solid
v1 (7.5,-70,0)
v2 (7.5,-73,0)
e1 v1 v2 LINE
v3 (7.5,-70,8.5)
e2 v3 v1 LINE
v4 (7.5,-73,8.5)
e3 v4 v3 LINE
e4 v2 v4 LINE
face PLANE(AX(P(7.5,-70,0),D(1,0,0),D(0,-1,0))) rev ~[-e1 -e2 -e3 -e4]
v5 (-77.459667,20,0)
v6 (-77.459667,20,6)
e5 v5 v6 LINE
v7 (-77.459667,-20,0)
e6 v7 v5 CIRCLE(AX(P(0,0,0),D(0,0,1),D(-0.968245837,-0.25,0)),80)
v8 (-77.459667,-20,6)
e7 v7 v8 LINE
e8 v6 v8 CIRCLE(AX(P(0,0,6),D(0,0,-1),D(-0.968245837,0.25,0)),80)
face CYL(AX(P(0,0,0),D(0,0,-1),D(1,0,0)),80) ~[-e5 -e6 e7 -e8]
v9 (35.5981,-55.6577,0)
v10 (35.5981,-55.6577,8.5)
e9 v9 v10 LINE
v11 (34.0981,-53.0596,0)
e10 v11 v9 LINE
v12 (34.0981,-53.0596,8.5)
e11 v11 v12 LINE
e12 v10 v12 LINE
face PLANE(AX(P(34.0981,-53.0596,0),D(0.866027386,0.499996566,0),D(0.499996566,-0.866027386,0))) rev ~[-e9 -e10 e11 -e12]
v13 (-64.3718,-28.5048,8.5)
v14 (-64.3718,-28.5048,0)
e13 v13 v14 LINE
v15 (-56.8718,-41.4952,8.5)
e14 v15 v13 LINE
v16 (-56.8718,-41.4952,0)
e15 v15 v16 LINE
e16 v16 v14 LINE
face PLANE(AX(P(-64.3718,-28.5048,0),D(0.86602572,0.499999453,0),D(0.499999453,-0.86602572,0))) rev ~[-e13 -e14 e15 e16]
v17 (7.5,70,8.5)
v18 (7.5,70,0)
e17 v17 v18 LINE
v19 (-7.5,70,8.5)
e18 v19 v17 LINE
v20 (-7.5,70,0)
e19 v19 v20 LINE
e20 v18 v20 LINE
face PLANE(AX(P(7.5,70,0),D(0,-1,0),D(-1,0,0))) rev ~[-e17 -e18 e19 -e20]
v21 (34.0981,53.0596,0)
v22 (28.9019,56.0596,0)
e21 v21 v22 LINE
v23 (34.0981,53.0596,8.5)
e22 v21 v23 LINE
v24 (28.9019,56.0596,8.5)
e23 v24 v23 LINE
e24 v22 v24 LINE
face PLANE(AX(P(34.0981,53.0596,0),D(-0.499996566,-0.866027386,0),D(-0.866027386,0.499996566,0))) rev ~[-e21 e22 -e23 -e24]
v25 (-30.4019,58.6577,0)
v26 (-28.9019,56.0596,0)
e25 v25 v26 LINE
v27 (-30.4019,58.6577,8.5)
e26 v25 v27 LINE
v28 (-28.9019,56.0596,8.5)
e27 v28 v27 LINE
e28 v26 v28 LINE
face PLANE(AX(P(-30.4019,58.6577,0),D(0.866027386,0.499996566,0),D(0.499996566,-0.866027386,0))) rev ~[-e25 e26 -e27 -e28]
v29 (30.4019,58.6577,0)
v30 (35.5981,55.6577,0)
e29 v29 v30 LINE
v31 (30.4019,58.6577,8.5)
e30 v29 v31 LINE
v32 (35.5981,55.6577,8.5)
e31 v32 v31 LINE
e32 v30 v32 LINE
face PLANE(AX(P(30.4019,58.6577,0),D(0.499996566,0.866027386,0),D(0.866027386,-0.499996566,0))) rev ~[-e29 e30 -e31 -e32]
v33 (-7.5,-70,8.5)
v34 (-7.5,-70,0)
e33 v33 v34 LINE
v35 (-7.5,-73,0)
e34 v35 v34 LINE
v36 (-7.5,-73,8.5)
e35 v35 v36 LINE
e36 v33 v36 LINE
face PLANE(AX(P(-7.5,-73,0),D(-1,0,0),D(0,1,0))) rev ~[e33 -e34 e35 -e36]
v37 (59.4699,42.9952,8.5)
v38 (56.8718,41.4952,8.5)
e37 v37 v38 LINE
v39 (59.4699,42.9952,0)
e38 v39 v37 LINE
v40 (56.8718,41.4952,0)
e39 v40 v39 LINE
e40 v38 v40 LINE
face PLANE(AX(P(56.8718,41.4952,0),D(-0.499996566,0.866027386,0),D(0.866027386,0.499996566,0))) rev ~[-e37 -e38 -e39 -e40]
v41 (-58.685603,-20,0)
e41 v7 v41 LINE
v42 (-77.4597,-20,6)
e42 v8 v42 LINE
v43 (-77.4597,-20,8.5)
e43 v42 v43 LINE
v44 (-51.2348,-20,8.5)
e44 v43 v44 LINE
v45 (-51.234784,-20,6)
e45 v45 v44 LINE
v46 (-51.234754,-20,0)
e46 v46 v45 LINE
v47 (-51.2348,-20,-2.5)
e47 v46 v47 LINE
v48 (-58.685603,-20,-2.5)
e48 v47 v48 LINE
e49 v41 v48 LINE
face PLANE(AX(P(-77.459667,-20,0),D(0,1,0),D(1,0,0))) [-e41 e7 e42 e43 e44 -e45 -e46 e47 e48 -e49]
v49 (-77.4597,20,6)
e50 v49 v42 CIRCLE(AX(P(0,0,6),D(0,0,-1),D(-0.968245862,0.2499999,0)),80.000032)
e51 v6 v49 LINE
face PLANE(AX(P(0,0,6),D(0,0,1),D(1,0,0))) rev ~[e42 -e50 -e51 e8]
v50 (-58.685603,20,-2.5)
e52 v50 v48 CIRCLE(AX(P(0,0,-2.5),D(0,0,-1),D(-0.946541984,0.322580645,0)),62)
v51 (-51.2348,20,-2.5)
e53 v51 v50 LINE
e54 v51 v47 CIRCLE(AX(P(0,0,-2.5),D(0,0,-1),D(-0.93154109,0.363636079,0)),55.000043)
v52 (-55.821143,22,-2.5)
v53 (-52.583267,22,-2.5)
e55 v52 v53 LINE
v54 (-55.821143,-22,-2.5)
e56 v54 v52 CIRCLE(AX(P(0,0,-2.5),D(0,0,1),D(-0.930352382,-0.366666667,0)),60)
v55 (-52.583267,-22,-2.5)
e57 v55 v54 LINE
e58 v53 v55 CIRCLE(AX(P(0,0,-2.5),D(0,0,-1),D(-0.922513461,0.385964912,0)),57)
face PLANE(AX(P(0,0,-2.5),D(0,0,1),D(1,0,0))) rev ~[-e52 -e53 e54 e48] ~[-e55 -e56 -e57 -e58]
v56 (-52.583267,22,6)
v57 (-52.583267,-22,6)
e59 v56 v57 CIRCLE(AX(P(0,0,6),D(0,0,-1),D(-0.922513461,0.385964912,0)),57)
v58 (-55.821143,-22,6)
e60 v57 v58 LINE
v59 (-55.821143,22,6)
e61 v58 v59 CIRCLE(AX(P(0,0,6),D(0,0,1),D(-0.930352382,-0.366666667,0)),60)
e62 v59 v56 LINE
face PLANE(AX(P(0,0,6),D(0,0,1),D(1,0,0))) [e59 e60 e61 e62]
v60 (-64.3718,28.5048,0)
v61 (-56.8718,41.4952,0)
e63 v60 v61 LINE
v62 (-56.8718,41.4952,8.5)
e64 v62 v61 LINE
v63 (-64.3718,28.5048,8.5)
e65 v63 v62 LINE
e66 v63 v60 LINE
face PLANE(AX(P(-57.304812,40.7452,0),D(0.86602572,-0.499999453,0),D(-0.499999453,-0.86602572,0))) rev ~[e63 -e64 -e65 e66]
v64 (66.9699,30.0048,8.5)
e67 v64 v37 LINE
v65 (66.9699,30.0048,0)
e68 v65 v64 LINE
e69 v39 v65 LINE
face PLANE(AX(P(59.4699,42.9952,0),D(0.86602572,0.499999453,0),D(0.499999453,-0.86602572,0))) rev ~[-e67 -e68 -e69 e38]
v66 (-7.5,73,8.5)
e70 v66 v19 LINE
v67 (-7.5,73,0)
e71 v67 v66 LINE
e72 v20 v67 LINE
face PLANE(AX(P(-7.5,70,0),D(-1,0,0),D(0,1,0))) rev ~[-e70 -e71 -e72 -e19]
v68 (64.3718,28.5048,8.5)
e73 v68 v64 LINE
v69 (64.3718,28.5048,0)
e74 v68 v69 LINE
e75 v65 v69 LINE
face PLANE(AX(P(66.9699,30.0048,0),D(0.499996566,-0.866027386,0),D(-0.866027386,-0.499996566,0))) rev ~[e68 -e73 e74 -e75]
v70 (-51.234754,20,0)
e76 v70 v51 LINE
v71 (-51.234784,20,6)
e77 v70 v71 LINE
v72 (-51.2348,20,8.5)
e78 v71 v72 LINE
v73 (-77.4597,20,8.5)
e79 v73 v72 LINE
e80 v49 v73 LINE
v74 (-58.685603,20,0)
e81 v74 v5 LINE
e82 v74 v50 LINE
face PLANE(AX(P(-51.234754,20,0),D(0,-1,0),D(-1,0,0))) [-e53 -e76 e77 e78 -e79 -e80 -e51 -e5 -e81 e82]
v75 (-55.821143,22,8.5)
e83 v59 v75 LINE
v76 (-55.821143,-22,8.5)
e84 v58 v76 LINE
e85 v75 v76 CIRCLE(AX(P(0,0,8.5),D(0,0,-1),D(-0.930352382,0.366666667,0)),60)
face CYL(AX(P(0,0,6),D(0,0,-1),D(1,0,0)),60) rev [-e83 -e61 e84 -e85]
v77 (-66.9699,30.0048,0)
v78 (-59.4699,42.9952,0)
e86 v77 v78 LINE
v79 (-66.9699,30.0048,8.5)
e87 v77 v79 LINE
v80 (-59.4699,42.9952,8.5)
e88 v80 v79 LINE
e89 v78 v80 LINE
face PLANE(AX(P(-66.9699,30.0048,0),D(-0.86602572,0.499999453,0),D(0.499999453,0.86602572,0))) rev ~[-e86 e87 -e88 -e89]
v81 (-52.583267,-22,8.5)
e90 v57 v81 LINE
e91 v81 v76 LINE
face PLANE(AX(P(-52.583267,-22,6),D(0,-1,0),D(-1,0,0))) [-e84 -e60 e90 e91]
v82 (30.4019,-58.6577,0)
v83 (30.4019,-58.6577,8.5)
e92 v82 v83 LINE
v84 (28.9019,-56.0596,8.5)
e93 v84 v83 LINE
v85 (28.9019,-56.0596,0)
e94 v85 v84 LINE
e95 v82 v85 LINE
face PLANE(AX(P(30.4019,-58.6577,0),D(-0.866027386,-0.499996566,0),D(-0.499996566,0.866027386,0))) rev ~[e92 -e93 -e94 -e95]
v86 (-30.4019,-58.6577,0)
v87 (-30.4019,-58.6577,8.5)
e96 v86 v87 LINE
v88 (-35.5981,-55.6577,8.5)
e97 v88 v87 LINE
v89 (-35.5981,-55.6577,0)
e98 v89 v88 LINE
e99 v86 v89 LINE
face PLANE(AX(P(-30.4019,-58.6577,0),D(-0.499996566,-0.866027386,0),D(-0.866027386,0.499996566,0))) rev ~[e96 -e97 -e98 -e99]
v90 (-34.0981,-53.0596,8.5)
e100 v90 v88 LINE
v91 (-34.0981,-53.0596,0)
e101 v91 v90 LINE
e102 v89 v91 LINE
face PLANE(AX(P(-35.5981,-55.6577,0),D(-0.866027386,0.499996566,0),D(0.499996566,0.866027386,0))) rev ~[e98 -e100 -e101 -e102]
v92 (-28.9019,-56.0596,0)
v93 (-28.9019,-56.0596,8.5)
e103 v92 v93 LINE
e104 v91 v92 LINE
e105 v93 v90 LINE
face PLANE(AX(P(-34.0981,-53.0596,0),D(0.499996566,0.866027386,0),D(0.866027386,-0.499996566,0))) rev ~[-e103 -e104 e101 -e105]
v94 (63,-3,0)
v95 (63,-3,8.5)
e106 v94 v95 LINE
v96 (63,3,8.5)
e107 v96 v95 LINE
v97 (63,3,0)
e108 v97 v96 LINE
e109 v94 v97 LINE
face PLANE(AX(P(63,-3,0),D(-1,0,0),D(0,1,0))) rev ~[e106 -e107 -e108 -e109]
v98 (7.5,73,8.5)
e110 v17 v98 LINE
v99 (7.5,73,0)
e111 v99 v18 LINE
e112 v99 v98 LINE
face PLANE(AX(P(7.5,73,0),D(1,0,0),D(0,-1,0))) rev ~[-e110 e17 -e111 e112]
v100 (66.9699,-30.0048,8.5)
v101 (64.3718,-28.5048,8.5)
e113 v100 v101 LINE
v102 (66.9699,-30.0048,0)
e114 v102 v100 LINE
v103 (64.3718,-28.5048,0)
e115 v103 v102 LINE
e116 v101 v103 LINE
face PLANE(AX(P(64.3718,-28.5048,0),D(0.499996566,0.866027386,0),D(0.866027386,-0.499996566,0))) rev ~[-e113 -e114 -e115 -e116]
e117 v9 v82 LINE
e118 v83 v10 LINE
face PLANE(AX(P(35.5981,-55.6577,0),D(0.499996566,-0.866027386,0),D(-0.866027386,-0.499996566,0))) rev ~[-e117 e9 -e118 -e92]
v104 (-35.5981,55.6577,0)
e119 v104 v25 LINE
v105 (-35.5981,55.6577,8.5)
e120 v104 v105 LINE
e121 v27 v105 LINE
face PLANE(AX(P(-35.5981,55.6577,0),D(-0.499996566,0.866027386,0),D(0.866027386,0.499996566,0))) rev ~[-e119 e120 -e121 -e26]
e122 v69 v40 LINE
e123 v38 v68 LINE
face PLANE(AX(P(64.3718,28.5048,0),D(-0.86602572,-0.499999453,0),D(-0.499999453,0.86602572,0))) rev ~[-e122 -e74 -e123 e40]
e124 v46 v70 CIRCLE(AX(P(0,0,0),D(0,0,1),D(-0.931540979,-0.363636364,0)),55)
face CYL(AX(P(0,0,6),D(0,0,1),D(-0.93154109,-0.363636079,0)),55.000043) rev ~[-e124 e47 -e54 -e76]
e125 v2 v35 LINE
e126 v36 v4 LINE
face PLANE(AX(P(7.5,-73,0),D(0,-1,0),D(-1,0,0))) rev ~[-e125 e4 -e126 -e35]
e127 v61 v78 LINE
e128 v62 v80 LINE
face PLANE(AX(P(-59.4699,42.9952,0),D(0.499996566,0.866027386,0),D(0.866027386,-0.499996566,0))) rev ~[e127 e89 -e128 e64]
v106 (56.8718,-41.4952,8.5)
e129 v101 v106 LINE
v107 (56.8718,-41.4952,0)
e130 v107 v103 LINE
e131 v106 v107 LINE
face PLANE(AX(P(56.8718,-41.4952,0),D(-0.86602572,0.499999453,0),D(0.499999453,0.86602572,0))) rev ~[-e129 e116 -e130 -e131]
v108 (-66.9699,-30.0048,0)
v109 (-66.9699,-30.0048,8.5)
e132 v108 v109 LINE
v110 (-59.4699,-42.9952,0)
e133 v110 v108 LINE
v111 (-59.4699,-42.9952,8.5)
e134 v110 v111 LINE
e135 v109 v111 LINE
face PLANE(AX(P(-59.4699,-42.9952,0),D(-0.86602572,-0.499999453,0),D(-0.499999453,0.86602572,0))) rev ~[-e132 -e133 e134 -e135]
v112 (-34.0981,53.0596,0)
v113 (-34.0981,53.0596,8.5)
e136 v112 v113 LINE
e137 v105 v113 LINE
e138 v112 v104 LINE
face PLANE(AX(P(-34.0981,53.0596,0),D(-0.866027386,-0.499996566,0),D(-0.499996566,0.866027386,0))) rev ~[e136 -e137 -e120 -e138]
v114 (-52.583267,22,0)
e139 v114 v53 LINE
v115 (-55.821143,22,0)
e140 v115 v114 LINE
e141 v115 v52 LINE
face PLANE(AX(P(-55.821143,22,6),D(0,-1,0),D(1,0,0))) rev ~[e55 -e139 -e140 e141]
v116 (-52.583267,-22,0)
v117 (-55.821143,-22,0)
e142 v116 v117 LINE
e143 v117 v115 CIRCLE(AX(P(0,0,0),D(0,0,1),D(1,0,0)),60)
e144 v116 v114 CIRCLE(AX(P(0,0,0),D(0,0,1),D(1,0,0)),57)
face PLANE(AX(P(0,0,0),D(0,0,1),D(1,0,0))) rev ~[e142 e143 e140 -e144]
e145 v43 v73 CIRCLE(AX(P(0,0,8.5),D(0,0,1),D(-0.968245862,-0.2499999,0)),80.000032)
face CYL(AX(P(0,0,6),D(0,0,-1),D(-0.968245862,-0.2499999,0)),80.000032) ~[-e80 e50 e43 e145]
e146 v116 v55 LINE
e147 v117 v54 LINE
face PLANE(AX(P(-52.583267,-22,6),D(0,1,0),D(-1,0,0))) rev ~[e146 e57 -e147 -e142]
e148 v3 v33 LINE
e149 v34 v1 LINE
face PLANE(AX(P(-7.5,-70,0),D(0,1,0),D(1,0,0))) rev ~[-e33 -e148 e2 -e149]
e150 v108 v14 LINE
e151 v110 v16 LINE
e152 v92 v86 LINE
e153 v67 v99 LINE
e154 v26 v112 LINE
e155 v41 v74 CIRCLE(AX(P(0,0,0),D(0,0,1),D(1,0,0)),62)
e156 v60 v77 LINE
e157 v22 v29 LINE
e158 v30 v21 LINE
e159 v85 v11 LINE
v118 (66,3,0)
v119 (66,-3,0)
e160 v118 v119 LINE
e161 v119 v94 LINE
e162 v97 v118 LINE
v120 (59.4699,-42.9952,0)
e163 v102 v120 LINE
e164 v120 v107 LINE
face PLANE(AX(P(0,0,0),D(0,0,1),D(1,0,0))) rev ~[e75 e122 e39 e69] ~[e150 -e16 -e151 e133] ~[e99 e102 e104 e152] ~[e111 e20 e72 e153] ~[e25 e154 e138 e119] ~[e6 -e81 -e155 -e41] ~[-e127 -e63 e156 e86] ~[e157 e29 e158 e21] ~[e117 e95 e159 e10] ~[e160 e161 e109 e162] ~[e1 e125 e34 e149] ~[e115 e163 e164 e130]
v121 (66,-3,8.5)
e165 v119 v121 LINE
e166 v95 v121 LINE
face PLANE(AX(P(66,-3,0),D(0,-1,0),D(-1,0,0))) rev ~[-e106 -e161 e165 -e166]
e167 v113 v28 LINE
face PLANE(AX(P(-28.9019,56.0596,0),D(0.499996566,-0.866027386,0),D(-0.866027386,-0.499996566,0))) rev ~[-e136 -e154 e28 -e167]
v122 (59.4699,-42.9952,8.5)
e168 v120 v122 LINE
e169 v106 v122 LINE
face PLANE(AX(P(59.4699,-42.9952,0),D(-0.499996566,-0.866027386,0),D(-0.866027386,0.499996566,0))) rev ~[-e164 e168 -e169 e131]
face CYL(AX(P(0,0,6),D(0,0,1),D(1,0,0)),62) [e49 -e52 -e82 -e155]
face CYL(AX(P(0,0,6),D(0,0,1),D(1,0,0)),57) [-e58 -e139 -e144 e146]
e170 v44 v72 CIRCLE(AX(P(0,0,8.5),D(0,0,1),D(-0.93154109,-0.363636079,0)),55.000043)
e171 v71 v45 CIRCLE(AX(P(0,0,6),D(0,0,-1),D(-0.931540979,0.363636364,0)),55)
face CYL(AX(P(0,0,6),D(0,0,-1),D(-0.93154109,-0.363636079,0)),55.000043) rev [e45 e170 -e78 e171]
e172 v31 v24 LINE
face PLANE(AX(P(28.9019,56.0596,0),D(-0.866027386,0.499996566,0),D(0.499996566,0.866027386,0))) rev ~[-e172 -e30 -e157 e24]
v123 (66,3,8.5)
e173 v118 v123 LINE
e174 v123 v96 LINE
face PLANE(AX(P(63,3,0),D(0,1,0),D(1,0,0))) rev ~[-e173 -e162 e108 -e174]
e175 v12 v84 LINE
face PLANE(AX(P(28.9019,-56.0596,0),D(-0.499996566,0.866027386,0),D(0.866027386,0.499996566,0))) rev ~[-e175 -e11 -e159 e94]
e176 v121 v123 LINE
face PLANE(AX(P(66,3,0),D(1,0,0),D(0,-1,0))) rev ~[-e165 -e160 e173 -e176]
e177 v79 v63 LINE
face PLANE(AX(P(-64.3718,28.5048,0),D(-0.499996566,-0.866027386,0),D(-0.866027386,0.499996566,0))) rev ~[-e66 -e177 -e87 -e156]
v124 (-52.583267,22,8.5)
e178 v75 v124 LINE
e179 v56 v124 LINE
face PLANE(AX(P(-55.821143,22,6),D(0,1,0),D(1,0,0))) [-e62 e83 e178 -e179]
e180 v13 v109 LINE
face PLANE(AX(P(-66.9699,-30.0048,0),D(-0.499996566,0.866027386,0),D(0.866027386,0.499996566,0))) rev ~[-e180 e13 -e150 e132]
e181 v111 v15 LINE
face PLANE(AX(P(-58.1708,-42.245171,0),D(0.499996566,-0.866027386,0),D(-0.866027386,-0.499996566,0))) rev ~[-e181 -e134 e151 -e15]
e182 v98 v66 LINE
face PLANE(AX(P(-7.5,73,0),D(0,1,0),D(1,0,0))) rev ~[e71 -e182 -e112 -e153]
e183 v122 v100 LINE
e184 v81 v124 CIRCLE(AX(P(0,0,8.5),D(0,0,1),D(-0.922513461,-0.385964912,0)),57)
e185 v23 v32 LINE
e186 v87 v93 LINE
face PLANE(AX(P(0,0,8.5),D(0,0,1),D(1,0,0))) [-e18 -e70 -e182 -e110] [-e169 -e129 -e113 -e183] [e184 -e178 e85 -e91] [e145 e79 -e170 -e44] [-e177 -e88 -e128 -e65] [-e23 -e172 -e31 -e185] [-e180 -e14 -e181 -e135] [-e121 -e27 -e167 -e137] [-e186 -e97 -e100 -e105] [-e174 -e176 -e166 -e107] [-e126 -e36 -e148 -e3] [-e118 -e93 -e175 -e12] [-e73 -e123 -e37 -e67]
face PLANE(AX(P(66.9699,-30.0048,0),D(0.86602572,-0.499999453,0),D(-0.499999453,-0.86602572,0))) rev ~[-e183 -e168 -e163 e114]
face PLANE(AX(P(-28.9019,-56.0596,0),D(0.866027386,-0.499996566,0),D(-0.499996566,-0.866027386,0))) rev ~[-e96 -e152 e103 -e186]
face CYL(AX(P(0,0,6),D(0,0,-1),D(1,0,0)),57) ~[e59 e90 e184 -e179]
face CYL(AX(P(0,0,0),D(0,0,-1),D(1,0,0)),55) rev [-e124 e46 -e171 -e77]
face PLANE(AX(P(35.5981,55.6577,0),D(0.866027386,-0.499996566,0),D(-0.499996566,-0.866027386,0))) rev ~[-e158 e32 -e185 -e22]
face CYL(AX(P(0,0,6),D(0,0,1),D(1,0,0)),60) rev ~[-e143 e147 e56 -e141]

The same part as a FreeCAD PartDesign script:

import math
import FreeCAD as App
import Part
import Sketcher

V = App.Vector
Q = App.Units.Quantity

doc = App.newDocument("Part")
body = doc.addObject("PartDesign::Body", "Body")

# Sketch on XY plane
sketch1 = body.newObject("Sketcher::SketchObject", "Sketch")
sketch1.AttachmentSupport = (doc.getObject("XY_Plane"), [""])
sketch1.MapMode = "FlatFace"
sketch1.addGeometry([
    Part.ArcOfCircle(Part.Circle(V(0, 0, 0), V(0, 0, 1), 80), math.radians(-165.522488), math.radians(165.522488)),  # 0
    Part.LineSegment(V(-77.459667, 20, 0), V(-51.234754, 20, 0)),  # 1
    Part.ArcOfCircle(Part.Circle(V(0, 0, 0), V(0, 0, 1), 55), math.radians(-158.676314), math.radians(158.676314)),  # 2
    Part.LineSegment(V(-51.234754, -20, 0), V(-77.459667, -20, 0)),  # 3
    Part.LineSegment(V(-59.4699, -42.9952, 0), V(-66.9699, -30.0048, 0)),  # 4
    Part.LineSegment(V(-66.9699, -30.0048, 0), V(-64.3718, -28.5048, 0)),  # 5
    Part.LineSegment(V(-64.3718, -28.5048, 0), V(-56.8718, -41.4952, 0)),  # 6
    Part.LineSegment(V(-56.8718, -41.4952, 0), V(-59.4699, -42.9952, 0)),  # 7
    Part.LineSegment(V(7.5, -70, 0), V(7.5, -73, 0)),  # 8
    Part.LineSegment(V(7.5, -73, 0), V(-7.5, -73, 0)),  # 9
    Part.LineSegment(V(-7.5, -73, 0), V(-7.5, -70, 0)),  # 10
    Part.LineSegment(V(-7.5, -70, 0), V(7.5, -70, 0)),  # 11
    Part.LineSegment(V(64.3718, -28.5048, 0), V(66.9699, -30.0048, 0)),  # 12
    Part.LineSegment(V(66.9699, -30.0048, 0), V(59.4699, -42.9952, 0)),  # 13
    Part.LineSegment(V(59.4699, -42.9952, 0), V(56.8718, -41.4952, 0)),  # 14
    Part.LineSegment(V(56.8718, -41.4952, 0), V(64.3718, -28.5048, 0)),  # 15
    Part.LineSegment(V(-64.3718, 28.5048, 0), V(-66.9699, 30.0048, 0)),  # 16
    Part.LineSegment(V(-66.9699, 30.0048, 0), V(-59.4699, 42.9952, 0)),  # 17
    Part.LineSegment(V(-59.4699, 42.9952, 0), V(-56.8718, 41.4952, 0)),  # 18
    Part.LineSegment(V(-56.8718, 41.4952, 0), V(-64.3718, 28.5048, 0)),  # 19
    Part.LineSegment(V(56.8718, 41.4952, 0), V(59.4699, 42.9952, 0)),  # 20
    Part.LineSegment(V(59.4699, 42.9952, 0), V(66.9699, 30.0048, 0)),  # 21
    Part.LineSegment(V(66.9699, 30.0048, 0), V(64.3718, 28.5048, 0)),  # 22
    Part.LineSegment(V(64.3718, 28.5048, 0), V(56.8718, 41.4952, 0)),  # 23
    Part.LineSegment(V(-7.5, 70, 0), V(-7.5, 73, 0)),  # 24
    Part.LineSegment(V(-7.5, 73, 0), V(7.5, 73, 0)),  # 25
    Part.LineSegment(V(7.5, 73, 0), V(7.5, 70, 0)),  # 26
    Part.LineSegment(V(7.5, 70, 0), V(-7.5, 70, 0)),  # 27
], False)
sketch1.addConstraint([
    Sketcher.Constraint("Coincident", 0, 2, 1, 1),
    Sketcher.Constraint("Coincident", 1, 2, 2, 2),
    Sketcher.Constraint("Coincident", 2, 1, 3, 1),
    Sketcher.Constraint("Coincident", 3, 2, 0, 1),
    Sketcher.Constraint("Coincident", 4, 2, 5, 1),
    Sketcher.Constraint("Coincident", 5, 2, 6, 1),
    Sketcher.Constraint("Coincident", 6, 2, 7, 1),
    Sketcher.Constraint("Coincident", 7, 2, 4, 1),
    Sketcher.Constraint("Coincident", 8, 2, 9, 1),
    Sketcher.Constraint("Coincident", 9, 2, 10, 1),
    Sketcher.Constraint("Coincident", 10, 2, 11, 1),
    Sketcher.Constraint("Coincident", 11, 2, 8, 1),
    Sketcher.Constraint("Coincident", 12, 2, 13, 1),
    Sketcher.Constraint("Coincident", 13, 2, 14, 1),
    Sketcher.Constraint("Coincident", 14, 2, 15, 1),
    Sketcher.Constraint("Coincident", 15, 2, 12, 1),
    Sketcher.Constraint("Coincident", 16, 2, 17, 1),
    Sketcher.Constraint("Coincident", 17, 2, 18, 1),
    Sketcher.Constraint("Coincident", 18, 2, 19, 1),
    Sketcher.Constraint("Coincident", 19, 2, 16, 1),
    Sketcher.Constraint("Coincident", 20, 2, 21, 1),
    Sketcher.Constraint("Coincident", 21, 2, 22, 1),
    Sketcher.Constraint("Coincident", 22, 2, 23, 1),
    Sketcher.Constraint("Coincident", 23, 2, 20, 1),
    Sketcher.Constraint("Coincident", 24, 2, 25, 1),
    Sketcher.Constraint("Coincident", 25, 2, 26, 1),
    Sketcher.Constraint("Coincident", 26, 2, 27, 1),
    Sketcher.Constraint("Coincident", 27, 2, 24, 1),
    Sketcher.Constraint("Horizontal", 1),
    Sketcher.Constraint("Horizontal", 3),
    Sketcher.Constraint("Vertical", 8),
    Sketcher.Constraint("Horizontal", 9),
    Sketcher.Constraint("Vertical", 10),
    Sketcher.Constraint("Horizontal", 11),
    Sketcher.Constraint("Vertical", 24),
    Sketcher.Constraint("Horizontal", 25),
    Sketcher.Constraint("Vertical", 26),
    Sketcher.Constraint("Horizontal", 27),
    Sketcher.Constraint("Coincident", 0, 3, -1, 1),
    Sketcher.Constraint("Coincident", 2, 3, -1, 1),
    Sketcher.Constraint("Symmetric", 12, 2, 16, 2, -1, 1),
    Sketcher.Constraint("Symmetric", 13, 2, 17, 2, -1, 1),
    Sketcher.Constraint("Symmetric", 14, 2, 18, 2, -1, 1),
    Sketcher.Constraint("Symmetric", 15, 2, 19, 2, -1, 1),
    Sketcher.Constraint("Symmetric", 7, 2, 20, 2, -1, 1),
    Sketcher.Constraint("Symmetric", 4, 2, 21, 2, -1, 1),
    Sketcher.Constraint("Symmetric", 5, 2, 22, 2, -1, 1),
    Sketcher.Constraint("Symmetric", 6, 2, 23, 2, -1, 1),
    Sketcher.Constraint("Symmetric", 8, 2, 24, 2, -1, 1),
    Sketcher.Constraint("Symmetric", 10, 2, 26, 2, -1, 1),
    Sketcher.Constraint("Symmetric", 4, 2, 12, 2, -2),
    Sketcher.Constraint("Symmetric", 7, 2, 13, 2, -2),
    Sketcher.Constraint("Symmetric", 6, 2, 14, 2, -2),
    Sketcher.Constraint("Symmetric", 5, 2, 15, 2, -2),
    Sketcher.Constraint("Perpendicular", 4, 5),
    Sketcher.Constraint("Perpendicular", 5, 6),
    Sketcher.Constraint("Perpendicular", 6, 7),
    Sketcher.Constraint("Vertical", 1, 2, 2, 1),
    Sketcher.Constraint("Vertical", 10, 2, 24, 2),
    Sketcher.Constraint("Radius", 0, Q("80 mm")),
    Sketcher.Constraint("Radius", 2, Q("55 mm")),
    Sketcher.Constraint("DistanceX", 9, 2, 9, 1, Q("15 mm")),
    Sketcher.Constraint("DistanceY", 8, 2, 8, 1, Q("3 mm")),
    Sketcher.Constraint("Distance", 4, Q("15 mm")),
    Sketcher.Constraint("Distance", 5, Q("3 mm")),
    Sketcher.Constraint("DistanceY", 10, 2, -1, 1, Q("70 mm")),
    Sketcher.Constraint("DistanceY", 2, 1, 1, 2, Q("40 mm")),
    Sketcher.Constraint("DistanceY", 14, 2, 22, 2, Q("70 mm")),
    Sketcher.Constraint("Angle", 4, Q("120 deg")),
    Sketcher.Constraint("DistanceX", 4, 2, -1, 1, Q("66.97 mm")),
])
pad1 = body.newObject("PartDesign::Pad", "Pad")
pad1.Profile = sketch1
pad1.Length = 6

# Sketch on XY plane
sketch2 = body.newObject("Sketcher::SketchObject", "Sketch001")
sketch2.AttachmentSupport = (doc.getObject("XY_Plane"), [""])
sketch2.MapMode = "FlatFace"
sketch2.AttachmentOffset = App.Placement(V(0, 0, 6), App.Rotation())
sketch2.addGeometry([
    Part.LineSegment(V(-51.2348, -20, 0), V(-58.685603, -20, 0)),  # 0
    Part.ArcOfCircle(Part.Circle(V(0, 0, 0), V(0, 0, 1), 62), math.radians(-161.180937), math.radians(161.180937)),  # 1
    Part.LineSegment(V(-58.685603, 20, 0), V(-51.2348, 20, 0)),  # 2
    Part.ArcOfCircle(Part.Circle(V(0, 0, 0), V(0, 0, 1), 55.000043), math.radians(-158.676331), math.radians(158.676331)),  # 3
    Part.LineSegment(V(-52.583267, 22, 0), V(-55.821143, 22, 0)),  # 4
    Part.ArcOfCircle(Part.Circle(V(0, 0, 0), V(0, 0, 1), 60), math.radians(-158.489812), math.radians(158.489812)),  # 5
    Part.LineSegment(V(-55.821143, -22, 0), V(-52.583267, -22, 0)),  # 6
    Part.ArcOfCircle(Part.Circle(V(0, 0, 0), V(0, 0, 1), 57), math.radians(-157.296344), math.radians(157.296344)),  # 7
], False)
sketch2.addConstraint([
    Sketcher.Constraint("Coincident", 0, 2, 1, 1),
    Sketcher.Constraint("Coincident", 1, 2, 2, 1),
    Sketcher.Constraint("Coincident", 2, 2, 3, 2),
    Sketcher.Constraint("Coincident", 3, 1, 0, 1),
    Sketcher.Constraint("Coincident", 4, 2, 5, 2),
    Sketcher.Constraint("Coincident", 5, 1, 6, 1),
    Sketcher.Constraint("Coincident", 6, 2, 7, 1),
    Sketcher.Constraint("Coincident", 7, 2, 4, 1),
    Sketcher.Constraint("Horizontal", 0),
    Sketcher.Constraint("Horizontal", 2),
    Sketcher.Constraint("Horizontal", 4),
    Sketcher.Constraint("Horizontal", 6),
    Sketcher.Constraint("Coincident", 1, 3, -1, 1),
    Sketcher.Constraint("Coincident", 3, 3, -1, 1),
    Sketcher.Constraint("Coincident", 5, 3, -1, 1),
    Sketcher.Constraint("Coincident", 7, 3, -1, 1),
    Sketcher.Constraint("Vertical", 0, 2, 1, 2),
    Sketcher.Constraint("Vertical", 4, 2, 5, 1),
    Sketcher.Constraint("Radius", 1, Q("62 mm")),
    Sketcher.Constraint("Radius", 5, Q("60 mm")),
    Sketcher.Constraint("Radius", 7, Q("57 mm")),
    Sketcher.Constraint("Radius", 3, Q("55 mm")),
    Sketcher.Constraint("DistanceY", 1, 2, 4, 2, Q("2 mm")),
    Sketcher.Constraint("DistanceY", 0, 2, -1, 1, Q("20 mm")),
])
pad2 = body.newObject("PartDesign::Pad", "Pad001")
pad2.Profile = sketch2
pad2.Length = 8.5
pad2.Reversed = True

# Sketch on XY plane
sketch3 = body.newObject("Sketcher::SketchObject", "Sketch002")
sketch3.AttachmentSupport = (doc.getObject("XY_Plane"), [""])
sketch3.MapMode = "FlatFace"
sketch3.AttachmentOffset = App.Placement(V(0, 0, 6), App.Rotation())
sketch3.addGeometry([
    Part.LineSegment(V(-51.2348, -20, 0), V(-77.4597, -20, 0)),  # 0
    Part.ArcOfCircle(Part.Circle(V(0, 0, 0), V(0, 0, 1), 80.000032), math.radians(-165.522494), math.radians(165.522494)),  # 1
    Part.LineSegment(V(-77.4597, 20, 0), V(-51.2348, 20, 0)),  # 2
    Part.ArcOfCircle(Part.Circle(V(0, 0, 0), V(0, 0, 1), 55.000043), math.radians(-158.676331), math.radians(158.676331)),  # 3
    Part.LineSegment(V(-52.583267, 22, 0), V(-55.821143, 22, 0)),  # 4
    Part.ArcOfCircle(Part.Circle(V(0, 0, 0), V(0, 0, 1), 60), math.radians(-158.489812), math.radians(158.489812)),  # 5
    Part.LineSegment(V(-55.821143, -22, 0), V(-52.583267, -22, 0)),  # 6
    Part.ArcOfCircle(Part.Circle(V(0, 0, 0), V(0, 0, 1), 57), math.radians(-157.296344), math.radians(157.296344)),  # 7
], False)
sketch3.addConstraint([
    Sketcher.Constraint("Coincident", 0, 2, 1, 1),
    Sketcher.Constraint("Coincident", 1, 2, 2, 1),
    Sketcher.Constraint("Coincident", 2, 2, 3, 2),
    Sketcher.Constraint("Coincident", 3, 1, 0, 1),
    Sketcher.Constraint("Coincident", 4, 2, 5, 2),
    Sketcher.Constraint("Coincident", 5, 1, 6, 1),
    Sketcher.Constraint("Coincident", 6, 2, 7, 1),
    Sketcher.Constraint("Coincident", 7, 2, 4, 1),
    Sketcher.Constraint("Horizontal", 0),
    Sketcher.Constraint("Horizontal", 2),
    Sketcher.Constraint("Horizontal", 4),
    Sketcher.Constraint("Horizontal", 6),
    Sketcher.Constraint("Coincident", 1, 3, -1, 1),
    Sketcher.Constraint("Coincident", 3, 3, -1, 1),
    Sketcher.Constraint("Coincident", 5, 3, -1, 1),
    Sketcher.Constraint("Coincident", 7, 3, -1, 1),
    Sketcher.Constraint("Vertical", 0, 2, 1, 2),
    Sketcher.Constraint("Vertical", 4, 2, 5, 1),
    Sketcher.Constraint("Radius", 5, Q("60 mm")),
    Sketcher.Constraint("Radius", 7, Q("57 mm")),
    Sketcher.Constraint("Radius", 1, Q("80 mm")),
    Sketcher.Constraint("Radius", 3, Q("55 mm")),
    Sketcher.Constraint("DistanceY", 2, 2, 4, 2, Q("2 mm")),
    Sketcher.Constraint("DistanceX", 0, 2, 0, 1, Q("26.225 mm")),
])
pad3 = body.newObject("PartDesign::Pad", "Pad002")
pad3.Profile = sketch3
pad3.Length = 2.5

# Sketch on XY plane
sketch4 = body.newObject("Sketcher::SketchObject", "Sketch003")
sketch4.AttachmentSupport = (doc.getObject("XY_Plane"), [""])
sketch4.MapMode = "FlatFace"
sketch4.addGeometry([
    Part.LineSegment(V(63, -3, 0), V(63, 3, 0)),  # 0
    Part.LineSegment(V(63, 3, 0), V(66, 3, 0)),  # 1
    Part.LineSegment(V(66, 3, 0), V(66, -3, 0)),  # 2
    Part.LineSegment(V(66, -3, 0), V(63, -3, 0)),  # 3
    Part.LineSegment(V(28.9019, -56.0596, 0), V(34.0981, -53.0596, 0)),  # 4
    Part.LineSegment(V(34.0981, -53.0596, 0), V(35.5981, -55.6577, 0)),  # 5
    Part.LineSegment(V(35.5981, -55.6577, 0), V(30.4019, -58.6577, 0)),  # 6
    Part.LineSegment(V(30.4019, -58.6577, 0), V(28.9019, -56.0596, 0)),  # 7
    Part.LineSegment(V(-34.0981, -53.0596, 0), V(-28.9019, -56.0596, 0)),  # 8
    Part.LineSegment(V(-28.9019, -56.0596, 0), V(-30.4019, -58.6577, 0)),  # 9
    Part.LineSegment(V(-30.4019, -58.6577, 0), V(-35.5981, -55.6577, 0)),  # 10
    Part.LineSegment(V(-35.5981, -55.6577, 0), V(-34.0981, -53.0596, 0)),  # 11
    Part.LineSegment(V(-28.9019, 56.0596, 0), V(-34.0981, 53.0596, 0)),  # 12
    Part.LineSegment(V(-34.0981, 53.0596, 0), V(-35.5981, 55.6577, 0)),  # 13
    Part.LineSegment(V(-35.5981, 55.6577, 0), V(-30.4019, 58.6577, 0)),  # 14
    Part.LineSegment(V(-30.4019, 58.6577, 0), V(-28.9019, 56.0596, 0)),  # 15
    Part.LineSegment(V(34.0981, 53.0596, 0), V(28.9019, 56.0596, 0)),  # 16
    Part.LineSegment(V(28.9019, 56.0596, 0), V(30.4019, 58.6577, 0)),  # 17
    Part.LineSegment(V(30.4019, 58.6577, 0), V(35.5981, 55.6577, 0)),  # 18
    Part.LineSegment(V(35.5981, 55.6577, 0), V(34.0981, 53.0596, 0)),  # 19
], False)
sketch4.addConstraint([
    Sketcher.Constraint("Coincident", 0, 2, 1, 1),
    Sketcher.Constraint("Coincident", 1, 2, 2, 1),
    Sketcher.Constraint("Coincident", 2, 2, 3, 1),
    Sketcher.Constraint("Coincident", 3, 2, 0, 1),
    Sketcher.Constraint("Coincident", 4, 2, 5, 1),
    Sketcher.Constraint("Coincident", 5, 2, 6, 1),
    Sketcher.Constraint("Coincident", 6, 2, 7, 1),
    Sketcher.Constraint("Coincident", 7, 2, 4, 1),
    Sketcher.Constraint("Coincident", 8, 2, 9, 1),
    Sketcher.Constraint("Coincident", 9, 2, 10, 1),
    Sketcher.Constraint("Coincident", 10, 2, 11, 1),
    Sketcher.Constraint("Coincident", 11, 2, 8, 1),
    Sketcher.Constraint("Coincident", 12, 2, 13, 1),
    Sketcher.Constraint("Coincident", 13, 2, 14, 1),
    Sketcher.Constraint("Coincident", 14, 2, 15, 1),
    Sketcher.Constraint("Coincident", 15, 2, 12, 1),
    Sketcher.Constraint("Coincident", 16, 2, 17, 1),
    Sketcher.Constraint("Coincident", 17, 2, 18, 1),
    Sketcher.Constraint("Coincident", 18, 2, 19, 1),
    Sketcher.Constraint("Coincident", 19, 2, 16, 1),
    Sketcher.Constraint("Vertical", 0),
    Sketcher.Constraint("Horizontal", 1),
    Sketcher.Constraint("Vertical", 2),
    Sketcher.Constraint("Horizontal", 3),
    Sketcher.Constraint("Symmetric", 4, 2, 12, 2, -1, 1),
    Sketcher.Constraint("Symmetric", 5, 2, 13, 2, -1, 1),
    Sketcher.Constraint("Symmetric", 6, 2, 14, 2, -1, 1),
    Sketcher.Constraint("Symmetric", 7, 2, 15, 2, -1, 1),
    Sketcher.Constraint("Symmetric", 8, 2, 16, 2, -1, 1),
    Sketcher.Constraint("Symmetric", 9, 2, 17, 2, -1, 1),
    Sketcher.Constraint("Symmetric", 10, 2, 18, 2, -1, 1),
    Sketcher.Constraint("Symmetric", 11, 2, 19, 2, -1, 1),
    Sketcher.Constraint("Symmetric", 7, 2, 8, 2, -2),
    Sketcher.Constraint("Symmetric", 6, 2, 9, 2, -2),
    Sketcher.Constraint("Symmetric", 5, 2, 10, 2, -2),
    Sketcher.Constraint("Symmetric", 4, 2, 11, 2, -2),
    Sketcher.Constraint("Perpendicular", 4, 5),
    Sketcher.Constraint("Perpendicular", 5, 6),
    Sketcher.Constraint("Perpendicular", 6, 7),
    Sketcher.Constraint("DistanceX", 1, 1, 1, 2, Q("3 mm")),
    Sketcher.Constraint("DistanceY", 0, 1, 0, 2, Q("6 mm")),
    Sketcher.Constraint("Distance", 4, Q("6 mm")),
    Sketcher.Constraint("Distance", 5, Q("3 mm")),
    Sketcher.Constraint("DistanceX", -1, 1, 0, 2, Q("63 mm")),
    Sketcher.Constraint("DistanceY", -1, 1, 0, 2, Q("3 mm")),
    Sketcher.Constraint("DistanceY", 6, 2, 5, 2, Q("3 mm")),
    Sketcher.Constraint("DistanceX", 8, 2, 4, 2, Q("63 mm")),
    Sketcher.Constraint("DistanceY", 4, 2, -1, 1, Q("53.0596 mm")),
])
pocket1 = body.newObject("PartDesign::Pocket", "Pocket")
pocket1.Profile = sketch4
pocket1.Type = "ThroughAll"
pocket1.Reversed = True

# Sketch on XY plane
sketch5 = body.newObject("Sketcher::SketchObject", "Sketch004")
sketch5.AttachmentSupport = (doc.getObject("XY_Plane"), [""])
sketch5.MapMode = "FlatFace"
sketch5.addGeometry([
    Part.LineSegment(V(7.5, 73, 0), V(-7.5, 73, 0)),  # 0
    Part.LineSegment(V(-7.5, 73, 0), V(-7.5, 70, 0)),  # 1
    Part.LineSegment(V(-7.5, 70, 0), V(7.5, 70, 0)),  # 2
    Part.LineSegment(V(7.5, 70, 0), V(7.5, 73, 0)),  # 3
    Part.LineSegment(V(-59.4699, 42.9952, 0), V(-66.9699, 30.0048, 0)),  # 4
    Part.LineSegment(V(-66.9699, 30.0048, 0), V(-64.3718, 28.5048, 0)),  # 5
    Part.LineSegment(V(-64.3718, 28.5048, 0), V(-56.8718, 41.4952, 0)),  # 6
    Part.LineSegment(V(-56.8718, 41.4952, 0), V(-59.4699, 42.9952, 0)),  # 7
    Part.LineSegment(V(-66.9699, -30.0048, 0), V(-59.4699, -42.9952, 0)),  # 8
    Part.LineSegment(V(-59.4699, -42.9952, 0), V(-56.8718, -41.4952, 0)),  # 9
    Part.LineSegment(V(-56.8718, -41.4952, 0), V(-64.3718, -28.5048, 0)),  # 10
    Part.LineSegment(V(-64.3718, -28.5048, 0), V(-66.9699, -30.0048, 0)),  # 11
    Part.LineSegment(V(-7.5, -73, 0), V(7.5, -73, 0)),  # 12
    Part.LineSegment(V(7.5, -73, 0), V(7.5, -70, 0)),  # 13
    Part.LineSegment(V(7.5, -70, 0), V(-7.5, -70, 0)),  # 14
    Part.LineSegment(V(-7.5, -70, 0), V(-7.5, -73, 0)),  # 15
    Part.LineSegment(V(59.4699, -42.9952, 0), V(66.9699, -30.0048, 0)),  # 16
    Part.LineSegment(V(66.9699, -30.0048, 0), V(64.3718, -28.5048, 0)),  # 17
    Part.LineSegment(V(64.3718, -28.5048, 0), V(56.8718, -41.4952, 0)),  # 18
    Part.LineSegment(V(56.8718, -41.4952, 0), V(59.4699, -42.9952, 0)),  # 19
    Part.LineSegment(V(66.9699, 30.0048, 0), V(59.4699, 42.9952, 0)),  # 20
    Part.LineSegment(V(59.4699, 42.9952, 0), V(56.8718, 41.4952, 0)),  # 21
    Part.LineSegment(V(56.8718, 41.4952, 0), V(64.3718, 28.5048, 0)),  # 22
    Part.LineSegment(V(64.3718, 28.5048, 0), V(66.9699, 30.0048, 0)),  # 23
], False)
sketch5.addConstraint([
    Sketcher.Constraint("Coincident", 0, 2, 1, 1),
    Sketcher.Constraint("Coincident", 1, 2, 2, 1),
    Sketcher.Constraint("Coincident", 2, 2, 3, 1),
    Sketcher.Constraint("Coincident", 3, 2, 0, 1),
    Sketcher.Constraint("Coincident", 4, 2, 5, 1),
    Sketcher.Constraint("Coincident", 5, 2, 6, 1),
    Sketcher.Constraint("Coincident", 6, 2, 7, 1),
    Sketcher.Constraint("Coincident", 7, 2, 4, 1),
    Sketcher.Constraint("Coincident", 8, 2, 9, 1),
    Sketcher.Constraint("Coincident", 9, 2, 10, 1),
    Sketcher.Constraint("Coincident", 10, 2, 11, 1),
    Sketcher.Constraint("Coincident", 11, 2, 8, 1),
    Sketcher.Constraint("Coincident", 12, 2, 13, 1),
    Sketcher.Constraint("Coincident", 13, 2, 14, 1),
    Sketcher.Constraint("Coincident", 14, 2, 15, 1),
    Sketcher.Constraint("Coincident", 15, 2, 12, 1),
    Sketcher.Constraint("Coincident", 16, 2, 17, 1),
    Sketcher.Constraint("Coincident", 17, 2, 18, 1),
    Sketcher.Constraint("Coincident", 18, 2, 19, 1),
    Sketcher.Constraint("Coincident", 19, 2, 16, 1),
    Sketcher.Constraint("Coincident", 20, 2, 21, 1),
    Sketcher.Constraint("Coincident", 21, 2, 22, 1),
    Sketcher.Constraint("Coincident", 22, 2, 23, 1),
    Sketcher.Constraint("Coincident", 23, 2, 20, 1),
    Sketcher.Constraint("Horizontal", 0),
    Sketcher.Constraint("Vertical", 1),
    Sketcher.Constraint("Horizontal", 2),
    Sketcher.Constraint("Vertical", 3),
    Sketcher.Constraint("Horizontal", 12),
    Sketcher.Constraint("Vertical", 13),
    Sketcher.Constraint("Horizontal", 14),
    Sketcher.Constraint("Vertical", 15),
    Sketcher.Constraint("Symmetric", 0, 2, 12, 2, -1, 1),
    Sketcher.Constraint("Symmetric", 2, 2, 14, 2, -1, 1),
    Sketcher.Constraint("Symmetric", 4, 2, 16, 2, -1, 1),
    Sketcher.Constraint("Symmetric", 5, 2, 17, 2, -1, 1),
    Sketcher.Constraint("Symmetric", 6, 2, 18, 2, -1, 1),
    Sketcher.Constraint("Symmetric", 7, 2, 19, 2, -1, 1),
    Sketcher.Constraint("Symmetric", 8, 2, 20, 2, -1, 1),
    Sketcher.Constraint("Symmetric", 9, 2, 21, 2, -1, 1),
    Sketcher.Constraint("Symmetric", 10, 2, 22, 2, -1, 1),
    Sketcher.Constraint("Symmetric", 11, 2, 23, 2, -1, 1),
    Sketcher.Constraint("Symmetric", 11, 2, 16, 2, -2),
    Sketcher.Constraint("Symmetric", 10, 2, 17, 2, -2),
    Sketcher.Constraint("Symmetric", 9, 2, 18, 2, -2),
    Sketcher.Constraint("Symmetric", 8, 2, 19, 2, -2),
    Sketcher.Constraint("Perpendicular", 4, 5),
    Sketcher.Constraint("Perpendicular", 5, 6),
    Sketcher.Constraint("Perpendicular", 6, 7),
    Sketcher.Constraint("Vertical", 3, 2, 12, 2),
    Sketcher.Constraint("DistanceX", 0, 2, 0, 1, Q("15 mm")),
    Sketcher.Constraint("DistanceY", 1, 2, 1, 1, Q("3 mm")),
    Sketcher.Constraint("Distance", 4, Q("15 mm")),
    Sketcher.Constraint("Distance", 5, Q("3 mm")),
    Sketcher.Constraint("DistanceY", -1, 1, 1, 2, Q("70 mm")),
    Sketcher.Constraint("DistanceY", 9, 2, 5, 2, Q("70 mm")),
    Sketcher.Constraint("Angle", 4, Q("-120 deg")),
    Sketcher.Constraint("DistanceX", 4, 2, -1, 1, Q("66.97 mm")),
])
pocket2 = body.newObject("PartDesign::Pocket", "Pocket001")
pocket2.Profile = sketch5
pocket2.Type = "ThroughAll"
pocket2.Reversed = True

doc.recompute()
